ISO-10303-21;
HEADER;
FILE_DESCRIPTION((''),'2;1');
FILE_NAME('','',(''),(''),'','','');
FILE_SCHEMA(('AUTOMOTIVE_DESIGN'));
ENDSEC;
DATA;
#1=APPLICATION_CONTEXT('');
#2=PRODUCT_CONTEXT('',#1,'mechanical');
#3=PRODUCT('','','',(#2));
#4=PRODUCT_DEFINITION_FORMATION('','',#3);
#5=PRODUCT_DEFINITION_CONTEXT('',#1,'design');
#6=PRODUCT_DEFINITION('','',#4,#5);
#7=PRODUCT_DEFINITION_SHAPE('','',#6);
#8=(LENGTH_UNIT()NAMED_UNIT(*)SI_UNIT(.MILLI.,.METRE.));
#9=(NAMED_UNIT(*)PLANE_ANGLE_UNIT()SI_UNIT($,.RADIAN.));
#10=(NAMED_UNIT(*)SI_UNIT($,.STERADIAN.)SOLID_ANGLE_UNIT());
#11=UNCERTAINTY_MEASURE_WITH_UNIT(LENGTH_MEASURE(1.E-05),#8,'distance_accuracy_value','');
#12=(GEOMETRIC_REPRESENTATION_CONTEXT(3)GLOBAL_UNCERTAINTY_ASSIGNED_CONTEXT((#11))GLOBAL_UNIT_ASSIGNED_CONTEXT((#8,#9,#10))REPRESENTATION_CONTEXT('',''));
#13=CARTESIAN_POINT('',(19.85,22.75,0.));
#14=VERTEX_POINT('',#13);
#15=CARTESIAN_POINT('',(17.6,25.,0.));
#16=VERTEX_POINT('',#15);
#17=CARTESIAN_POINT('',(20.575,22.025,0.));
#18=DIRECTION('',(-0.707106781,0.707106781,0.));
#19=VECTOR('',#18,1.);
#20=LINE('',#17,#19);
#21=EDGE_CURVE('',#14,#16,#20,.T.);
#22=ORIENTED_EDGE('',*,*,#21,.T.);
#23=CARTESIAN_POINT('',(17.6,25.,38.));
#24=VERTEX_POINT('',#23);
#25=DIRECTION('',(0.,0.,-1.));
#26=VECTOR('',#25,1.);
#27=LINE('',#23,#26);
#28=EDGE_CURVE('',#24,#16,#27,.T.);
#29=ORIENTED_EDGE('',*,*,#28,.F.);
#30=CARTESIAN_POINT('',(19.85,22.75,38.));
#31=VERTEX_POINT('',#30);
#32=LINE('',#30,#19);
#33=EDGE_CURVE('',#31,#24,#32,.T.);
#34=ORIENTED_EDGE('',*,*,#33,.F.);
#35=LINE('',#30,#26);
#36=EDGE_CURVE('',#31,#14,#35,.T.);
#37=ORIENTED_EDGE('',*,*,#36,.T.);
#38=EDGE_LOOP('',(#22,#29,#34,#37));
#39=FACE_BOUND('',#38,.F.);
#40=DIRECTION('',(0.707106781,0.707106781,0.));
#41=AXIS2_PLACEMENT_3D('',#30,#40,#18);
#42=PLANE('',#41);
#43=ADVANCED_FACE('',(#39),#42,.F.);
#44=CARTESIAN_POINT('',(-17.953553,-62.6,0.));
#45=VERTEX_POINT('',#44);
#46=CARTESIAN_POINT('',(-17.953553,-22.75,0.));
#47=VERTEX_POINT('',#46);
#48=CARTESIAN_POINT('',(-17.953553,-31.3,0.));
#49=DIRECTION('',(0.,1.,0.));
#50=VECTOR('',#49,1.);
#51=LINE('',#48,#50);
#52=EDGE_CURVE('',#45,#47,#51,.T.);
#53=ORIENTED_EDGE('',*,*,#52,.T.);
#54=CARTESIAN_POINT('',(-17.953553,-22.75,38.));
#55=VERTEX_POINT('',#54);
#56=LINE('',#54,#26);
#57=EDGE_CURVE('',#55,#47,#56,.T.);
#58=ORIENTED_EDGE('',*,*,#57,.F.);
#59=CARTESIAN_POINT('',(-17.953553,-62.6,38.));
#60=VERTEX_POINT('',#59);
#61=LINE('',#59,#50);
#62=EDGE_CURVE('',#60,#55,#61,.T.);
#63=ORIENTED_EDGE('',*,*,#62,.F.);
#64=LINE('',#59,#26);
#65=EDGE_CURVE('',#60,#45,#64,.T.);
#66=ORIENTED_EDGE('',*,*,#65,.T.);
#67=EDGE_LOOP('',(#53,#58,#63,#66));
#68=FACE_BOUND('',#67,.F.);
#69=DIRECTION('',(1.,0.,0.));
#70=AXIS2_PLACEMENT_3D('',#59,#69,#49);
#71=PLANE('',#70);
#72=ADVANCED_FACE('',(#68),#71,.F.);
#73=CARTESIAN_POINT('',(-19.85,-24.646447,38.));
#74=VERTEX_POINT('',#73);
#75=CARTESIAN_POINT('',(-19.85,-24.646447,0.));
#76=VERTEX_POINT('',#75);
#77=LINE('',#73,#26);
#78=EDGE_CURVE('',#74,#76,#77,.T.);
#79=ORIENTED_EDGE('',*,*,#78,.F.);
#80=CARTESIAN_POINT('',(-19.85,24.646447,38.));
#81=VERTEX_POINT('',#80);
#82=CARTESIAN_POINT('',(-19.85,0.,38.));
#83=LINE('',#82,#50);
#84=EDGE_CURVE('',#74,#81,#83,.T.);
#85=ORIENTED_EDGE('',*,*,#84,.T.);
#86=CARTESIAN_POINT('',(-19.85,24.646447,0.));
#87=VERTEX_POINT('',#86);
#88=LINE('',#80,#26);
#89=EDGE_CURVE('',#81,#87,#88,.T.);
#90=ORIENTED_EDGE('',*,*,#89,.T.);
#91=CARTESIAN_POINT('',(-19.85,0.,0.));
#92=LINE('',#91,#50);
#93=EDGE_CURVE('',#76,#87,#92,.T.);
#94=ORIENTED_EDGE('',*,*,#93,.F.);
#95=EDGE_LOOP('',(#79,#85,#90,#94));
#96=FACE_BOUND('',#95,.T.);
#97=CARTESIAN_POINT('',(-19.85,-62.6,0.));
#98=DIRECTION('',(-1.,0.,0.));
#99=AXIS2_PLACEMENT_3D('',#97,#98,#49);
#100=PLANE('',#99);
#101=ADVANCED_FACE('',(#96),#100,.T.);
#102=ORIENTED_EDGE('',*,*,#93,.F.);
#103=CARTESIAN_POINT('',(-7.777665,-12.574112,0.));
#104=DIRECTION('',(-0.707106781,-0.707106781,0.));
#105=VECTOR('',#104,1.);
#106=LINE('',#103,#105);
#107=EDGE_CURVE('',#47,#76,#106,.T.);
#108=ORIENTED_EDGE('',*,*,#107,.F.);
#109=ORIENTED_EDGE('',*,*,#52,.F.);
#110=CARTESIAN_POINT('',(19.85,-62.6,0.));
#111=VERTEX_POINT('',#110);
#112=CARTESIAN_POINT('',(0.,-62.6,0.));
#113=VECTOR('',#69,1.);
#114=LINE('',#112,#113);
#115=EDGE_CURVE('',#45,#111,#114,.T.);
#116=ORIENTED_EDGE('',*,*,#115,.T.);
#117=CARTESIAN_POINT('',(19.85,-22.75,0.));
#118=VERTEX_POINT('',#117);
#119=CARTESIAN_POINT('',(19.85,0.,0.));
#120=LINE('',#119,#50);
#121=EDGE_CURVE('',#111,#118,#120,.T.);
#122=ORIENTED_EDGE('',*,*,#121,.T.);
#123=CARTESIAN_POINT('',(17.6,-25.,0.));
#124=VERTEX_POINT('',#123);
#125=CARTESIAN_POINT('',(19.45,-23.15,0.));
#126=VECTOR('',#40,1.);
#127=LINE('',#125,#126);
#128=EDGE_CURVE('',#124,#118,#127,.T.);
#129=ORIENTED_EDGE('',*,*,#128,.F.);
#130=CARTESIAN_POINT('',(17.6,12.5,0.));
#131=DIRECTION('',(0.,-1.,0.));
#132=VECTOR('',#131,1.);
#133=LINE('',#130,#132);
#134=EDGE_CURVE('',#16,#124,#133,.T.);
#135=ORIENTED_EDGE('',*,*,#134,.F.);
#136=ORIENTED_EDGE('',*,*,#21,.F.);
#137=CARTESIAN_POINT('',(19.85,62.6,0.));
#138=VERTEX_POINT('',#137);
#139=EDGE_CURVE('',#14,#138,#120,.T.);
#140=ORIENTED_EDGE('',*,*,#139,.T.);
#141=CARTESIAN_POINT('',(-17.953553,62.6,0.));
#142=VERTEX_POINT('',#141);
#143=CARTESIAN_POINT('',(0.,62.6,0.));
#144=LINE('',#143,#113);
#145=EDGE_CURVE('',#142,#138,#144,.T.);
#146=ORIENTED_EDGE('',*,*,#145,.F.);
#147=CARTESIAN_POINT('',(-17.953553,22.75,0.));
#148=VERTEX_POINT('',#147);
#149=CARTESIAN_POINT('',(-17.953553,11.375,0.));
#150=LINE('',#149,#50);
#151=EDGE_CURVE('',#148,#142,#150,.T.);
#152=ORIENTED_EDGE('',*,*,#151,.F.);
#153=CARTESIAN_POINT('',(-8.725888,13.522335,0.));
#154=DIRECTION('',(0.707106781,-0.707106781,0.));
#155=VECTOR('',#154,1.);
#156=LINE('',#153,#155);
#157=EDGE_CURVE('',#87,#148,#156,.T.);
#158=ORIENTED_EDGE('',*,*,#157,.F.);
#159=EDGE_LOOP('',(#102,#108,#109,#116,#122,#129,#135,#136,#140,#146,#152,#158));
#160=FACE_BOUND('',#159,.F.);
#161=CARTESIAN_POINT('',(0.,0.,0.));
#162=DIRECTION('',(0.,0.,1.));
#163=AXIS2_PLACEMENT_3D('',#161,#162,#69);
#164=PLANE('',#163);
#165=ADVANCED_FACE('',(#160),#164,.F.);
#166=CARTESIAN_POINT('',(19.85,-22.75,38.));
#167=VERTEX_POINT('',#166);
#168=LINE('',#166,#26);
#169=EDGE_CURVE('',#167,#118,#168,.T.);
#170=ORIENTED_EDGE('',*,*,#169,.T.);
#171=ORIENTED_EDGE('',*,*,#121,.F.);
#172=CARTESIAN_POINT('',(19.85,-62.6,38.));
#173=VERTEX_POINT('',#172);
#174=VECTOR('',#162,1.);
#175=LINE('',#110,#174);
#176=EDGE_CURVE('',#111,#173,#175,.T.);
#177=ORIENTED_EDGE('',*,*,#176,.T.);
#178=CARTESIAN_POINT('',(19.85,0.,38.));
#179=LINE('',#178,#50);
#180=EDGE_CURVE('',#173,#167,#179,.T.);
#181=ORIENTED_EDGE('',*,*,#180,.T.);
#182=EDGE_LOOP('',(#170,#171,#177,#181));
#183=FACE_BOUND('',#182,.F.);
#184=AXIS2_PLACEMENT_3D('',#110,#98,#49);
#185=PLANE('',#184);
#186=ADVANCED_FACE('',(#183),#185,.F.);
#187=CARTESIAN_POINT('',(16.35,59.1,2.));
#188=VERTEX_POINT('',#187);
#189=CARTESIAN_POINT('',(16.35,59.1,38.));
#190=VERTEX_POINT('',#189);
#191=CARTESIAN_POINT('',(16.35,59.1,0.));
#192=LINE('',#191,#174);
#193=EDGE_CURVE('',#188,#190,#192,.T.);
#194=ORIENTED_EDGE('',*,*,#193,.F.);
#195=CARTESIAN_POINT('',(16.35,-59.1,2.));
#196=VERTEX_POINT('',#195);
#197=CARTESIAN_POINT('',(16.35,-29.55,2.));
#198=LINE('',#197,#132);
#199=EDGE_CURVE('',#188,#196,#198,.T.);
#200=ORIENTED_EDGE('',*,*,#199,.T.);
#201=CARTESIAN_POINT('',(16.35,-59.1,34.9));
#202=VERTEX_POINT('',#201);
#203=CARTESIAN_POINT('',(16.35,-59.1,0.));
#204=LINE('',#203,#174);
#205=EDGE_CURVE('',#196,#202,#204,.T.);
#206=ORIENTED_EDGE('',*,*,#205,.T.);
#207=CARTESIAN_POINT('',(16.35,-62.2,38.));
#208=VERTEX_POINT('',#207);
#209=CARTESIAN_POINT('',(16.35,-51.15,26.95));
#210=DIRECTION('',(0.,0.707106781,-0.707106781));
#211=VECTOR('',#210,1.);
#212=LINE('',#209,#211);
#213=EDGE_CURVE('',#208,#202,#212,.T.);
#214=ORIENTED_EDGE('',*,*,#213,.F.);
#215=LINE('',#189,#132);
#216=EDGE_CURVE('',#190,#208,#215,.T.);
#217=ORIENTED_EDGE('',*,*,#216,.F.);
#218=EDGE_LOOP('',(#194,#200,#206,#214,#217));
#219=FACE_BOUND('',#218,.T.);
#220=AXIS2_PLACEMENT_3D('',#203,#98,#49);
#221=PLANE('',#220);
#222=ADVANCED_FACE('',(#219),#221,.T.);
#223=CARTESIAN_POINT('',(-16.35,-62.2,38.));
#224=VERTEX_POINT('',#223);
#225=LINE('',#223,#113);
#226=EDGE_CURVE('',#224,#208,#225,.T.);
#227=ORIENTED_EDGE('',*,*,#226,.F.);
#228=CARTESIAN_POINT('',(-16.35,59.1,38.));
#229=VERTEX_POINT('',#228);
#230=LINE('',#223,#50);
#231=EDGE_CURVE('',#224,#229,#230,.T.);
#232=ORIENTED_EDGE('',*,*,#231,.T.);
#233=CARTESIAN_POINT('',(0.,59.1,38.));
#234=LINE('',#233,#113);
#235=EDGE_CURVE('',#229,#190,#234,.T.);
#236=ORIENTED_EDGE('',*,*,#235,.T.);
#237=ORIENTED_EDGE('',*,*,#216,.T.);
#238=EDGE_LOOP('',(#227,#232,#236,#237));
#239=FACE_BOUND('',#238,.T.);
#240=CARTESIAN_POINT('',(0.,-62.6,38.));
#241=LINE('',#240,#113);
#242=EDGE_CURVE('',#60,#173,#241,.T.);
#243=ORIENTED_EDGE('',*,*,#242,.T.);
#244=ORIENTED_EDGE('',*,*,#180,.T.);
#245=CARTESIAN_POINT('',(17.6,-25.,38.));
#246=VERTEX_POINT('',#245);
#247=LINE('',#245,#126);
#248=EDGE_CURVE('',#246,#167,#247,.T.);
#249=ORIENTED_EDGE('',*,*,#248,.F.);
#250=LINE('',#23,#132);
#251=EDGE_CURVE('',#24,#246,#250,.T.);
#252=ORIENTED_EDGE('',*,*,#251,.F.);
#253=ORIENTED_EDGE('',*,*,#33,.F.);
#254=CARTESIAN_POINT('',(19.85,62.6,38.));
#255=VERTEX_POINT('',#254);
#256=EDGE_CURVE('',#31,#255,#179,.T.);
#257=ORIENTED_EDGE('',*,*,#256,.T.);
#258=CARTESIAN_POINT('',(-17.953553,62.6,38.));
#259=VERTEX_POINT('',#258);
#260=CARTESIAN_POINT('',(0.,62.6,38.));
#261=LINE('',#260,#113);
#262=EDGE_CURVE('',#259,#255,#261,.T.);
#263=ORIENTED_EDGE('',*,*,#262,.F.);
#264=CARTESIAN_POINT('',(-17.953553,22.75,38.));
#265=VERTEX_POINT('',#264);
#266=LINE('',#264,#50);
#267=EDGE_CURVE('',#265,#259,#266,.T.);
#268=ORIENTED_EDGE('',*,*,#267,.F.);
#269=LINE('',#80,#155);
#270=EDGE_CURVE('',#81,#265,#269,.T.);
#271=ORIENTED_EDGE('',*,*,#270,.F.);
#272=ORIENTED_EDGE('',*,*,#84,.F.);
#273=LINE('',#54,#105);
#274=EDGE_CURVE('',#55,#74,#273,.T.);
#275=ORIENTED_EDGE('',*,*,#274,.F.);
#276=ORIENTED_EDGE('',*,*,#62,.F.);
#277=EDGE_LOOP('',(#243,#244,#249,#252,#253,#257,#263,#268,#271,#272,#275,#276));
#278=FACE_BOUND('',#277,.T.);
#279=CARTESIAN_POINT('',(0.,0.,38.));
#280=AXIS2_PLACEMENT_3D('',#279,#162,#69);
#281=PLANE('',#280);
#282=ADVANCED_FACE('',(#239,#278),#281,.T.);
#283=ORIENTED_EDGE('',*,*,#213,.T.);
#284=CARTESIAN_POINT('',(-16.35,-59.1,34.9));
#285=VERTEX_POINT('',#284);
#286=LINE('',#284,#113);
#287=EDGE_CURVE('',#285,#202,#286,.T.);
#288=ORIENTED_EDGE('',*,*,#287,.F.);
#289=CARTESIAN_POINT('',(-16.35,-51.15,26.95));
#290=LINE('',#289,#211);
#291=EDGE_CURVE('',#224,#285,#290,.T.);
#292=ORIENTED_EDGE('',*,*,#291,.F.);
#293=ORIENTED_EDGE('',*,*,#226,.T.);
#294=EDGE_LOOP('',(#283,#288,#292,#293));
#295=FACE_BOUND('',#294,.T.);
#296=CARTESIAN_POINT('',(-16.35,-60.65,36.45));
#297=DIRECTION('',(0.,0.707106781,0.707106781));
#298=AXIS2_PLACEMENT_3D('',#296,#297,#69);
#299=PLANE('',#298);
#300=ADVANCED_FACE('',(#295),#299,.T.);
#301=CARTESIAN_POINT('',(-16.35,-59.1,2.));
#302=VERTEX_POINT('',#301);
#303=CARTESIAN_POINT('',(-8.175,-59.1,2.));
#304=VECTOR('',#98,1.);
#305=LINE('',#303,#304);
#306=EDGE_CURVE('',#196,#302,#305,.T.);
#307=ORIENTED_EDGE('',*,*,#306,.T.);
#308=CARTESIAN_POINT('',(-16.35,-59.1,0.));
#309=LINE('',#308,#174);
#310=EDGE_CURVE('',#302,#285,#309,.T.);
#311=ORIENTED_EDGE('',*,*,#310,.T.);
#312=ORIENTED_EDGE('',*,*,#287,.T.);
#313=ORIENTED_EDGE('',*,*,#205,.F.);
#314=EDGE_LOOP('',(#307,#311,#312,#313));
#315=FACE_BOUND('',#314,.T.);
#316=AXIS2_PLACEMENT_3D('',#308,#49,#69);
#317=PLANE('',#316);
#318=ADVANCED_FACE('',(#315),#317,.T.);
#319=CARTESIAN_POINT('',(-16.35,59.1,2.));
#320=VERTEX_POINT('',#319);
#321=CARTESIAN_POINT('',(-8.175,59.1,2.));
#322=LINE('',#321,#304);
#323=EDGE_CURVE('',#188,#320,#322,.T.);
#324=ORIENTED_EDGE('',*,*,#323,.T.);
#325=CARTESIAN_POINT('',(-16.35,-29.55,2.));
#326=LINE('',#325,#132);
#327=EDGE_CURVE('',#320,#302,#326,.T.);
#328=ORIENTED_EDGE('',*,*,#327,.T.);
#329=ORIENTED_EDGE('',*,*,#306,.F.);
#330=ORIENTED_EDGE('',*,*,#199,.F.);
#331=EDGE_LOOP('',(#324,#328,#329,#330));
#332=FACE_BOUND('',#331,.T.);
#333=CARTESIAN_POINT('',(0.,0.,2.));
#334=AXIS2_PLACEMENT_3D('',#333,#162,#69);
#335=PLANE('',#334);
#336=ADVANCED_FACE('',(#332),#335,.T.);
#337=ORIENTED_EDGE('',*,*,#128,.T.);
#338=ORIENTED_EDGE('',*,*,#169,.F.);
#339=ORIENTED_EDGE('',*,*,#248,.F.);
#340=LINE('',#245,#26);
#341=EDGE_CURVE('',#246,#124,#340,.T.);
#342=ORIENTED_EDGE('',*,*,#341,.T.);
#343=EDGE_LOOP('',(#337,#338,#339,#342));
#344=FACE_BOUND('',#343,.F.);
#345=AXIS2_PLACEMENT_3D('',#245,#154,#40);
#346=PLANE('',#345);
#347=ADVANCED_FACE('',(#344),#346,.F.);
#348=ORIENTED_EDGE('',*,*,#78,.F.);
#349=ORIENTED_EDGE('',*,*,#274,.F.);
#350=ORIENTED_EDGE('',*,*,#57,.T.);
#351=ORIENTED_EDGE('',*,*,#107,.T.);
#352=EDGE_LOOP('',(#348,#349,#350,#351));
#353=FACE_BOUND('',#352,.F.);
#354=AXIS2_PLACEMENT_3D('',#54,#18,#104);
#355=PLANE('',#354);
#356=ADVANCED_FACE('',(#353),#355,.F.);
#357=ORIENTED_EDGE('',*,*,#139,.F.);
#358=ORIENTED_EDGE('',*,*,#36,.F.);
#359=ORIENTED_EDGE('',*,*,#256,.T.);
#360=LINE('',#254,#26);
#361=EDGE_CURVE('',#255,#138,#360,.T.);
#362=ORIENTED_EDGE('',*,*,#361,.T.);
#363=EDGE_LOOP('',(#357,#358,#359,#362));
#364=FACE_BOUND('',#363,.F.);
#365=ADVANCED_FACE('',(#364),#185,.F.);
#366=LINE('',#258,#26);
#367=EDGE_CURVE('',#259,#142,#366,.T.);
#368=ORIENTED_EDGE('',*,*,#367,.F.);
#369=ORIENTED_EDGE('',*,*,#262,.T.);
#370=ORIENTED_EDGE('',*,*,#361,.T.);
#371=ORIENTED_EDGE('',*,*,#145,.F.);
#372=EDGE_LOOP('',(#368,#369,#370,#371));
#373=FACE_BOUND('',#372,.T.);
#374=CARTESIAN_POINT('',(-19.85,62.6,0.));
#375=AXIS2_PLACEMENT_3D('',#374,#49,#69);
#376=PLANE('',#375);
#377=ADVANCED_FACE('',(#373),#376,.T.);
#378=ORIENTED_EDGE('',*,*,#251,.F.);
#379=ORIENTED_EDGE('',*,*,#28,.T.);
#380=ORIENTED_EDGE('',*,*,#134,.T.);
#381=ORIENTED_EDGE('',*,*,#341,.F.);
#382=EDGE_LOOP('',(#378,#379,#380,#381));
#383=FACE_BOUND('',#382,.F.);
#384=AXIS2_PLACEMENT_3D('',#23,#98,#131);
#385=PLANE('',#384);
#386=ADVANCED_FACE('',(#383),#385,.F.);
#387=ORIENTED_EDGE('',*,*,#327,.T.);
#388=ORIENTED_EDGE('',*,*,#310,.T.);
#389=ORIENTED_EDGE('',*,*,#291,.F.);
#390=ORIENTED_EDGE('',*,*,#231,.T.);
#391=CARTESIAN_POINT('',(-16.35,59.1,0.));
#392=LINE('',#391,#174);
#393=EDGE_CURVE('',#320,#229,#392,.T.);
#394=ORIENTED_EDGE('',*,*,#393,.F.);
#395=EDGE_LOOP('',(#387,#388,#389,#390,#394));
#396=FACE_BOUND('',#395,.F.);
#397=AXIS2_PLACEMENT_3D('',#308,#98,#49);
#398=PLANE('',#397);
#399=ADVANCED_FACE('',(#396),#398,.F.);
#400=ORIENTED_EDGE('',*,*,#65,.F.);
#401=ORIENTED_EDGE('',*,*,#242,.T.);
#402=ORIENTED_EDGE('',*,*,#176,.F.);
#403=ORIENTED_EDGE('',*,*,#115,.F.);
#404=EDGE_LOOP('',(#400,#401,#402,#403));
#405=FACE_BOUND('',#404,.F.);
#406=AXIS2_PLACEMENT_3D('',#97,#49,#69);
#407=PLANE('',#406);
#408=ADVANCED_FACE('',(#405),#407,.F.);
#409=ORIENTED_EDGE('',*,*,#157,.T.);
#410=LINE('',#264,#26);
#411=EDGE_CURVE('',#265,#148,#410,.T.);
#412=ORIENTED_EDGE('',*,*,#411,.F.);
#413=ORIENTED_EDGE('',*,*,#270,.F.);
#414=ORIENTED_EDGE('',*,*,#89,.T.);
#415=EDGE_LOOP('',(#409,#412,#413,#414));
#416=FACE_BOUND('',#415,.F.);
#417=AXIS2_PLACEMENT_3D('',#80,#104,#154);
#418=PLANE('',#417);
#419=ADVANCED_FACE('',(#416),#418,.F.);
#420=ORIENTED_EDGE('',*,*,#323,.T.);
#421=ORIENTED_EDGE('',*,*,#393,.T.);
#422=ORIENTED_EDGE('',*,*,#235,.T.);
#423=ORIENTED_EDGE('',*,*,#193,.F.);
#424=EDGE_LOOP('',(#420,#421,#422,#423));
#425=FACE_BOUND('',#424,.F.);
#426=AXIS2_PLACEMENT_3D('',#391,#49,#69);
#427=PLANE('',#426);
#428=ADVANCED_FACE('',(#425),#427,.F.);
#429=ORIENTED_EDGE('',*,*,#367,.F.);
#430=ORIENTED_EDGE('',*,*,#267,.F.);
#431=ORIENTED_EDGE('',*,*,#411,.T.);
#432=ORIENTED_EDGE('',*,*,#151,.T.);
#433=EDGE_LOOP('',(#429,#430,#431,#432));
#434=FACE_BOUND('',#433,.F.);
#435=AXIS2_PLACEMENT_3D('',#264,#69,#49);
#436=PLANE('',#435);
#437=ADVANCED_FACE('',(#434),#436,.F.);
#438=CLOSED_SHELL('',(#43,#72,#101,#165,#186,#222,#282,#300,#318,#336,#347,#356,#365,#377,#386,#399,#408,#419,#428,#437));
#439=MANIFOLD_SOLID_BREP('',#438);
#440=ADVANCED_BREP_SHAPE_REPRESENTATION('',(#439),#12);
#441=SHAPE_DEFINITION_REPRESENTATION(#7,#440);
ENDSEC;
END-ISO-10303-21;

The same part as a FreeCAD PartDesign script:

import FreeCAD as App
import Part
import Sketcher

V = App.Vector
Q = App.Units.Quantity


def edges_at(feature, points):
    """Names of the edges that pass closest to the given points."""
    edges = feature.Shape.Edges
    near = lambda p: min(range(len(edges)), key=lambda i: edges[i].distToShape(Part.Vertex(*p))[0])
    return sorted({f"Edge{near(p) + 1}" for p in points})


def add_polygon(sketch, points):
    """Adds a closed chain of lines whose ends are joined by coincident constraints."""
    first, n = sketch.GeometryCount, len(points)
    for a, b in zip(points, points[1:] + points[:1]):
        sketch.addGeometry(Part.LineSegment(App.Vector(*a, 0), App.Vector(*b, 0)), False)
    for i in range(n):
        sketch.addConstraint(Sketcher.Constraint("Coincident", first + i, 2, first + (i + 1) % n, 1))

doc = App.newDocument("Part")
body = doc.addObject("PartDesign::Body", "Body")

sketch1 = body.newObject("Sketcher::SketchObject", "Sketch")
sketch1.AttachmentSupport = (doc.getObject("XY_Plane"), [""])
sketch1.MapMode = "FlatFace"
add_polygon(sketch1, [(-19.85, 62.6), (-19.85, -62.6), (19.85, -62.6), (19.85, 62.6)])
sketch1.addConstraint(Sketcher.Constraint("Vertical", 0))
sketch1.addConstraint(Sketcher.Constraint("Horizontal", 1))
sketch1.addConstraint(Sketcher.Constraint("Vertical", 2))
sketch1.addConstraint(Sketcher.Constraint("Horizontal", 3))
sketch1.addConstraint(Sketcher.Constraint("Symmetric", 0, 2, 2, 2, -1, 1))
sketch1.addConstraint(Sketcher.Constraint("DistanceX", 1, 1, 1, 2, Q("39.7 mm")))
sketch1.addConstraint(Sketcher.Constraint("DistanceY", 0, 2, 0, 1, Q("125.2 mm")))
pad1 = body.newObject("PartDesign::Pad", "Pad")
pad1.Profile = sketch1
pad1.Length = 2

sketch2 = body.newObject("Sketcher::SketchObject", "Sketch001")
sketch2.AttachmentSupport = (doc.getObject("XY_Plane"), [""])
sketch2.MapMode = "FlatFace"
add_polygon(sketch2, [(-19.85, 62.6), (-19.85, -62.6), (19.85, -62.6), (19.85, 62.6)])
add_polygon(sketch2, [(16.35, -59.1), (-16.35, -59.1), (-16.35, 59.1), (16.35, 59.1)])
sketch2.addConstraint(Sketcher.Constraint("Vertical", 0))
sketch2.addConstraint(Sketcher.Constraint("Horizontal", 1))
sketch2.addConstraint(Sketcher.Constraint("Vertical", 2))
sketch2.addConstraint(Sketcher.Constraint("Horizontal", 3))
sketch2.addConstraint(Sketcher.Constraint("Horizontal", 4))
sketch2.addConstraint(Sketcher.Constraint("Vertical", 5))
sketch2.addConstraint(Sketcher.Constraint("Horizontal", 6))
sketch2.addConstraint(Sketcher.Constraint("Vertical", 7))
sketch2.addConstraint(Sketcher.Constraint("Symmetric", 0, 2, 2, 2, -1, 1))
sketch2.addConstraint(Sketcher.Constraint("Symmetric", 4, 2, 6, 2, -1, 1))
sketch2.addConstraint(Sketcher.Constraint("DistanceX", 1, 1, 1, 2, Q("39.7 mm")))
sketch2.addConstraint(Sketcher.Constraint("DistanceX", 4, 2, 4, 1, Q("32.7 mm")))
sketch2.addConstraint(Sketcher.Constraint("DistanceY", 0, 2, 0, 1, Q("125.2 mm")))
sketch2.addConstraint(Sketcher.Constraint("DistanceY", 5, 1, 5, 2, Q("118.2 mm")))
pad2 = body.newObject("PartDesign::Pad", "Pad001")
pad2.Profile = sketch2
pad2.Length = 38

sketch3 = body.newObject("Sketcher::SketchObject", "Sketch002")
sketch3.AttachmentSupport = (doc.getObject("XY_Plane"), [""])
sketch3.MapMode = "FlatFace"
sketch3.AttachmentOffset = App.Placement(V(0, 0, 38), App.Rotation())
add_polygon(sketch3, [(-17.953553, 22.75), (-17.953553, 62.6), (-19.85, 62.6), (-19.85, 24.646447)])
add_polygon(sketch3, [(-19.85, -62.6), (-17.953553, -62.6), (-17.953553, -22.75), (-19.85, -24.646447)])
add_polygon(sketch3, [(19.85, -22.75), (19.85, 22.75), (17.6, 25), (17.6, -25)])
sketch3.addConstraint(Sketcher.Constraint("Vertical", 0))
sketch3.addConstraint(Sketcher.Constraint("Horizontal", 1))
sketch3.addConstraint(Sketcher.Constraint("Vertical", 2))
sketch3.addConstraint(Sketcher.Constraint("Horizontal", 4))
sketch3.addConstraint(Sketcher.Constraint("Vertical", 5))
sketch3.addConstraint(Sketcher.Constraint("Vertical", 7))
sketch3.addConstraint(Sketcher.Constraint("Vertical", 8))
sketch3.addConstraint(Sketcher.Constraint("Vertical", 10))
sketch3.addConstraint(Sketcher.Constraint("Symmetric", 0, 2, 4, 2, -1))
sketch3.addConstraint(Sketcher.Constraint("Symmetric", 2, 2, 6, 2, -1))
sketch3.addConstraint(Sketcher.Constraint("Perpendicular", 3, 6))
sketch3.addConstraint(Sketcher.Constraint("Perpendicular", 6, 9))
sketch3.addConstraint(Sketcher.Constraint("Perpendicular", 9, 11))
sketch3.addConstraint(Sketcher.Constraint("Horizontal", 3, 2, 8, 2))
sketch3.addConstraint(Sketcher.Constraint("Horizontal", 5, 2, 11, 2))
sketch3.addConstraint(Sketcher.Constraint("Equal", 0, 5))
sketch3.addConstraint(Sketcher.Constraint("DistanceY", 10, 2, 10, 1, Q("50 mm")))
sketch3.addConstraint(Sketcher.Constraint("DistanceY", 8, 1, 8, 2, Q("45.5 mm")))
sketch3.addConstraint(Sketcher.Constraint("DistanceY", 0, 1, 0, 2, Q("39.85 mm")))
sketch3.addConstraint(Sketcher.Constraint("DistanceX", -1, 1, 9, 2, Q("17.6 mm")))
sketch3.addConstraint(Sketcher.Constraint("DistanceX", 2, 2, 8, 2, Q("39.7 mm")))
sketch3.addConstraint(Sketcher.Constraint("Distance", 3, Q("2.681981 mm")))
pocket1 = body.newObject("PartDesign::Pocket", "Pocket")
pocket1.Profile = sketch3
pocket1.Type = "ThroughAll"
doc.recompute()

chamfer = body.newObject("PartDesign::Chamfer", "Chamfer")
chamfer.Base = (pocket1, edges_at(pocket1, [(0, -59.1, 38)]))
chamfer.Size = 3.1

doc.recompute()
